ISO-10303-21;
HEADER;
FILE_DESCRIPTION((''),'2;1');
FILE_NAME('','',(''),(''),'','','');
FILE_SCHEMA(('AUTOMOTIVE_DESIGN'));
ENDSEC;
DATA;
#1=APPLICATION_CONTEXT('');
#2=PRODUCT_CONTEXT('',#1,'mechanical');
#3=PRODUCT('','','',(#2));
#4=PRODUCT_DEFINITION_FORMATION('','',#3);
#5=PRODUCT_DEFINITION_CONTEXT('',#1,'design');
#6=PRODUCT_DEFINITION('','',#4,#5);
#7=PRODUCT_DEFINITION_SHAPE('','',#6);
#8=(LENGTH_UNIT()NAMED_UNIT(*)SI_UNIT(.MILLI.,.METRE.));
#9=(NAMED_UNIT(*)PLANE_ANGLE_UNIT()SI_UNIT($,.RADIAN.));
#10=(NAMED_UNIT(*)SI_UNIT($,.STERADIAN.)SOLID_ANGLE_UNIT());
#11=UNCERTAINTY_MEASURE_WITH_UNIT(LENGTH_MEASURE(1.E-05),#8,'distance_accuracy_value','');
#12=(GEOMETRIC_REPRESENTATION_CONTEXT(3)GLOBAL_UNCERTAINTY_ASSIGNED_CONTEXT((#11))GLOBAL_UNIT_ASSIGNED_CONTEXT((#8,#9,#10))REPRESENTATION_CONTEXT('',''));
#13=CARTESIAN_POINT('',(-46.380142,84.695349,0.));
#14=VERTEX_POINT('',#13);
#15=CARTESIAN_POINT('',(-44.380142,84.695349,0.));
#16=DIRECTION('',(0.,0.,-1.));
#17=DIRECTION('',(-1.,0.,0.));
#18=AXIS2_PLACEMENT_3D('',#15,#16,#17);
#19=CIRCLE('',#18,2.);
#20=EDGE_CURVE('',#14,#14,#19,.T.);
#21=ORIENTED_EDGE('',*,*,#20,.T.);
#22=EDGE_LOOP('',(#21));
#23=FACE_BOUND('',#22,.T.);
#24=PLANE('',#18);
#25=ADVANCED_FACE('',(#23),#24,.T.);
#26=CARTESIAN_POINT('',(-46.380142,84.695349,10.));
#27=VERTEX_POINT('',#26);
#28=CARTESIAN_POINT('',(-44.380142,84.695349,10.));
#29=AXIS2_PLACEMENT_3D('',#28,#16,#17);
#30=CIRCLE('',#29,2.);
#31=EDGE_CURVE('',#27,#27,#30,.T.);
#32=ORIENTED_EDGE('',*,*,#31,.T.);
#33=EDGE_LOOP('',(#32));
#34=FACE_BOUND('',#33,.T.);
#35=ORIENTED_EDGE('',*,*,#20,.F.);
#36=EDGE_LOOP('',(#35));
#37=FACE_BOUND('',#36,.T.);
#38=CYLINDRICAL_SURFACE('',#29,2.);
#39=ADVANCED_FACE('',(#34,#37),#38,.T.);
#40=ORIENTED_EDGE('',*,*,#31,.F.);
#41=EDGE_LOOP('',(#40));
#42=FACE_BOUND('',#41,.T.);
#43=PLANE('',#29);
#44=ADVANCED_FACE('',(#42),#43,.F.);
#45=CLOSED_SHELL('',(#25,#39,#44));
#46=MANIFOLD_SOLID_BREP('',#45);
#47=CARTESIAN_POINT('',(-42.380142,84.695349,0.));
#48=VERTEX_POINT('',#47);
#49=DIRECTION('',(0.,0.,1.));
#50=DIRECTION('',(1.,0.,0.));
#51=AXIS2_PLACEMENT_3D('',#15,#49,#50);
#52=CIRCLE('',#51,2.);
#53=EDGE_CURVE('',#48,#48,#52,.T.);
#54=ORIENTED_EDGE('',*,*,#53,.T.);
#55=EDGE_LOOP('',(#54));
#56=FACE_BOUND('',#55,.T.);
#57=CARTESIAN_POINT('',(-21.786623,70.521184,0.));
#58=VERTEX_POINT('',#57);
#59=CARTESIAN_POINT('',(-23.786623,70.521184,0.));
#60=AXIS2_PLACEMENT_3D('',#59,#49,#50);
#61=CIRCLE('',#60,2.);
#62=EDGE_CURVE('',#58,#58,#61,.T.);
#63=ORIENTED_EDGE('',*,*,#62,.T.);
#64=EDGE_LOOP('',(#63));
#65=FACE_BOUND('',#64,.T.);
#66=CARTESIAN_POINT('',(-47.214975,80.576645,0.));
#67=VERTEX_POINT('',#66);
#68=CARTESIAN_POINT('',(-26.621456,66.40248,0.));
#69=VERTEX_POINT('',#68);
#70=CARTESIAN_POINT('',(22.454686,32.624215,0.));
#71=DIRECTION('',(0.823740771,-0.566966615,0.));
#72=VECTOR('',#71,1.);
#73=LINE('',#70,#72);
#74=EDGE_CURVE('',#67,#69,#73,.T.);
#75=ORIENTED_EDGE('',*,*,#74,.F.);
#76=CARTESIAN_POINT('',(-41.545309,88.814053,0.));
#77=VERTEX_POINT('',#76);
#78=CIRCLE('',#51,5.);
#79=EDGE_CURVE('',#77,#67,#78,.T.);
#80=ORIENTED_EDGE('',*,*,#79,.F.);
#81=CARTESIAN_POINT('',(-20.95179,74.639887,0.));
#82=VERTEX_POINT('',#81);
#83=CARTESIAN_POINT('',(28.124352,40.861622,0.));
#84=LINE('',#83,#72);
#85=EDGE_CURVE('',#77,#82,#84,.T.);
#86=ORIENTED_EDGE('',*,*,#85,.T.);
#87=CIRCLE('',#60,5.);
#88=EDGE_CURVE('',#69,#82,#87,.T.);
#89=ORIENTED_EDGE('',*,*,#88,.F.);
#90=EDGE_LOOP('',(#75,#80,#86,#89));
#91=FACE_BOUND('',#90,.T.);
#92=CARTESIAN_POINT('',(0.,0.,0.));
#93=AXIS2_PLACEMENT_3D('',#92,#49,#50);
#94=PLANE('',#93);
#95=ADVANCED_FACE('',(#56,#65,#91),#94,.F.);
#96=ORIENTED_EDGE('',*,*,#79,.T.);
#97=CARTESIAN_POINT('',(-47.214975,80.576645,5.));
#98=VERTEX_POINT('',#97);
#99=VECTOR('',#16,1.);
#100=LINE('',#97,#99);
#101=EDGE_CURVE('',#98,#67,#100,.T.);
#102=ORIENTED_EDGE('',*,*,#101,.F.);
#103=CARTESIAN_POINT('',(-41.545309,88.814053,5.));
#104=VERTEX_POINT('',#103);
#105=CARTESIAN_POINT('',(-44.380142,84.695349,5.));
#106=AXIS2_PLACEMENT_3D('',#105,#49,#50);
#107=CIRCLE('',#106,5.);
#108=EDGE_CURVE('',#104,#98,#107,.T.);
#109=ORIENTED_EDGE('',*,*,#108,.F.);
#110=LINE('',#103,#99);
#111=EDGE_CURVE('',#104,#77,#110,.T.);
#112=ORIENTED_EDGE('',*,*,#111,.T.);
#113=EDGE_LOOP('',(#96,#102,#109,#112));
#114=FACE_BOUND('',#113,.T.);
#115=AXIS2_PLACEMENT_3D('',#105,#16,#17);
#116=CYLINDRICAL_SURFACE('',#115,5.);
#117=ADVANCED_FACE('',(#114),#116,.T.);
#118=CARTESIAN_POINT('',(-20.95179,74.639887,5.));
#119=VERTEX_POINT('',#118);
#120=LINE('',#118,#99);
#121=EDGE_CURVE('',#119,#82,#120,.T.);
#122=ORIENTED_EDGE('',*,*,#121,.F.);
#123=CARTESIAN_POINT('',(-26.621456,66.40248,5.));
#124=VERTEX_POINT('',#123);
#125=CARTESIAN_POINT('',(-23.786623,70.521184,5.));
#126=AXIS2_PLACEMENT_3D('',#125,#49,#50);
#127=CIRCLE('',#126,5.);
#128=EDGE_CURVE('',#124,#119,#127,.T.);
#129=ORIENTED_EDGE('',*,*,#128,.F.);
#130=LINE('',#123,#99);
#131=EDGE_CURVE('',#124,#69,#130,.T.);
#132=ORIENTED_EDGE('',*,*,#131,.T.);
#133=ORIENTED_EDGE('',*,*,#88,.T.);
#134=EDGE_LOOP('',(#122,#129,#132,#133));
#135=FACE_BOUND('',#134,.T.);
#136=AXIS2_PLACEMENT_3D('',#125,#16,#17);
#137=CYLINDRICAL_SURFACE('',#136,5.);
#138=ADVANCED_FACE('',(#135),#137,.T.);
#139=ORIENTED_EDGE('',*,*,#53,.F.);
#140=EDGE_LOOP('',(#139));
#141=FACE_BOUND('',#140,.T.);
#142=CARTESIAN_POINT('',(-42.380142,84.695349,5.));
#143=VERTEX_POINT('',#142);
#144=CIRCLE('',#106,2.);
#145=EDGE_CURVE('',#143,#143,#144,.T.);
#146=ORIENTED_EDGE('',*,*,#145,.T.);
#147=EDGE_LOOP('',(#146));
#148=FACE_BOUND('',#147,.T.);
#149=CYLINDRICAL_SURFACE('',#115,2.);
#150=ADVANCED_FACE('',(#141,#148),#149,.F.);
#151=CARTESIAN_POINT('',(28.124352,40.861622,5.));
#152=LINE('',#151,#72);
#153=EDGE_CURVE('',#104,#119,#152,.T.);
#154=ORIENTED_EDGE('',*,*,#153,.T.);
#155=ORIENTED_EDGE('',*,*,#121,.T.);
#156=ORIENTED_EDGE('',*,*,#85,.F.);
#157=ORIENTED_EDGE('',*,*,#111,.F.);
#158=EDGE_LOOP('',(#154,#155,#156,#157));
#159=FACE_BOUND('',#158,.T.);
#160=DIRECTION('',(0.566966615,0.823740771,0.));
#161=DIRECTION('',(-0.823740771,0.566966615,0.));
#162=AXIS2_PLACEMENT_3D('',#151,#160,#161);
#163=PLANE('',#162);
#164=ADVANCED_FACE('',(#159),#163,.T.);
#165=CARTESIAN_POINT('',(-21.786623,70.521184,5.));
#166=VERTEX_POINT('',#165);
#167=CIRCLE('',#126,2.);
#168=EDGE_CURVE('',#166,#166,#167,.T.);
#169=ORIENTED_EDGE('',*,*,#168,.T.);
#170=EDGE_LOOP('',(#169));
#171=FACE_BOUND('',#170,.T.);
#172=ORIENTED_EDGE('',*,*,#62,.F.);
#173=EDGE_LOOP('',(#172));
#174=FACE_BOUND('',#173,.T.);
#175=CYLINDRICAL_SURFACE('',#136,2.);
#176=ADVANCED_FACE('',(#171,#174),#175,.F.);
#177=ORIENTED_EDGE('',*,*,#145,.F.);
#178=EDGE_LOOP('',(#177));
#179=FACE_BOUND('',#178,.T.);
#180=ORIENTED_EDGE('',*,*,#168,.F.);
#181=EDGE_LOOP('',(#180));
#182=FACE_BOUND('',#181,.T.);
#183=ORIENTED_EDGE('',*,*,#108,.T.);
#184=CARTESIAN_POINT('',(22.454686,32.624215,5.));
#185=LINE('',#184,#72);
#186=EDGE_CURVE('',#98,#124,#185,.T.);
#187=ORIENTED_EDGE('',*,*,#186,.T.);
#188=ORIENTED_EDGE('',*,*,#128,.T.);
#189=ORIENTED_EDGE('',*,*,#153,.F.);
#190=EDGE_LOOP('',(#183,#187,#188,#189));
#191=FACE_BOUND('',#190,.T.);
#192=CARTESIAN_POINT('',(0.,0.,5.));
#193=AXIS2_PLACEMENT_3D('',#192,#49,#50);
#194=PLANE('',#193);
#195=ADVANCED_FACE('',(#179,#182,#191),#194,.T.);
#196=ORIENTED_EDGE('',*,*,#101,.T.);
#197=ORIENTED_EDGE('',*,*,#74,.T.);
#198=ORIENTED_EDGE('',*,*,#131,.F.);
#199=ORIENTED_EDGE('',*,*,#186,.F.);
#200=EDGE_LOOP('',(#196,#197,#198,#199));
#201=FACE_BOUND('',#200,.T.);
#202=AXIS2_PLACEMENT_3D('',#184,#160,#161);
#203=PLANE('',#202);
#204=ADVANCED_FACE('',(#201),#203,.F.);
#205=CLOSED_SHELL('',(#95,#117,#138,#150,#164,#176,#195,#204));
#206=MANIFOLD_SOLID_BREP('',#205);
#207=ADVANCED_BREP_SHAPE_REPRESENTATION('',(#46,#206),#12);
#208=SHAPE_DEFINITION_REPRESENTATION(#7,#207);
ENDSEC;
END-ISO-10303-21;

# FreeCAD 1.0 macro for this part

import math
import FreeCAD as App
import Part
import Sketcher

V = App.Vector
Q = App.Units.Quantity

doc = App.newDocument("Part")
body = doc.addObject("PartDesign::Body", "Body")

# Sketch on XY plane
sketch1 = body.newObject("Sketcher::SketchObject", "Sketch")
sketch1.AttachmentSupport = (doc.getObject("XY_Plane"), [""])
sketch1.MapMode = "FlatFace"
sketch1.addGeometry([
    Part.LineSegment(V(-21, 74.6, 0), V(-41.5, 88.8, 0)),  # 0
    Part.ArcOfCircle(Part.Circle(V(-44.4, 84.7, 0), V(0, 0, 1), 5), math.radians(55), math.radians(235)),  # 1
    Part.LineSegment(V(-47.2, 80.6, 0), V(-26.6, 66.4, 0)),  # 2
    Part.ArcOfCircle(Part.Circle(V(-23.8, 70.5, 0), V(0, 0, 1), 5), math.radians(-125), math.radians(55)),  # 3
    Part.Circle(V(-23.8, 70.5, 0), V(0, 0, 1), 2),  # 4
    Part.Circle(V(-44.4, 84.7, 0), V(0, 0, 1), 2),  # 5
], False)
sketch1.addConstraint([
    Sketcher.Constraint("Tangent", 0, 2, 1, 1),
    Sketcher.Constraint("Tangent", 1, 2, 2, 1),
    Sketcher.Constraint("Tangent", 2, 2, 3, 1),
    Sketcher.Constraint("Tangent", 3, 2, 0, 1),
    Sketcher.Constraint("Coincident", 4, 3, 3, 3),
    Sketcher.Constraint("Coincident", 5, 3, 1, 3),
    Sketcher.Constraint("Equal", 1, 3),
    Sketcher.Constraint("Equal", 4, 5),
    Sketcher.Constraint("Diameter", 4, Q("4 mm")),
    Sketcher.Constraint("Radius", 1, Q("5 mm")),
    Sketcher.Constraint("Distance", 0, Q("25 mm")),
    Sketcher.Constraint("DistanceX", 1, 3, -1, 1, Q("44.380142 mm")),
    Sketcher.Constraint("DistanceY", -1, 1, 1, 3, Q("84.695349 mm")),
    Sketcher.Constraint("DistanceX", 0, 2, -1, 1, Q("41.545309 mm")),
])
pad1 = body.newObject("PartDesign::Pad", "Pad")
pad1.Profile = sketch1
pad1.Length = 5
body2 = doc.addObject("PartDesign::Body", "Body001")

# Sketch on XY plane
sketch2 = body2.newObject("Sketcher::SketchObject", "Sketch001")
sketch2.AttachmentSupport = (doc.getObject("XY_Plane001"), [""])
sketch2.MapMode = "FlatFace"
sketch2.addGeometry(Part.Circle(V(-44.4, 84.7, 0), V(0, 0, 1), 2), False)
sketch2.addConstraint([
    Sketcher.Constraint("Diameter", 0, Q("4 mm")),
    Sketcher.Constraint("DistanceX", 0, 3, -1, 1, Q("44.380142 mm")),
    Sketcher.Constraint("DistanceY", -1, 1, 0, 3, Q("84.695349 mm")),
])
pad2 = body2.newObject("PartDesign::Pad", "Pad001")
pad2.Profile = sketch2
pad2.Length = 10

doc.recompute()
